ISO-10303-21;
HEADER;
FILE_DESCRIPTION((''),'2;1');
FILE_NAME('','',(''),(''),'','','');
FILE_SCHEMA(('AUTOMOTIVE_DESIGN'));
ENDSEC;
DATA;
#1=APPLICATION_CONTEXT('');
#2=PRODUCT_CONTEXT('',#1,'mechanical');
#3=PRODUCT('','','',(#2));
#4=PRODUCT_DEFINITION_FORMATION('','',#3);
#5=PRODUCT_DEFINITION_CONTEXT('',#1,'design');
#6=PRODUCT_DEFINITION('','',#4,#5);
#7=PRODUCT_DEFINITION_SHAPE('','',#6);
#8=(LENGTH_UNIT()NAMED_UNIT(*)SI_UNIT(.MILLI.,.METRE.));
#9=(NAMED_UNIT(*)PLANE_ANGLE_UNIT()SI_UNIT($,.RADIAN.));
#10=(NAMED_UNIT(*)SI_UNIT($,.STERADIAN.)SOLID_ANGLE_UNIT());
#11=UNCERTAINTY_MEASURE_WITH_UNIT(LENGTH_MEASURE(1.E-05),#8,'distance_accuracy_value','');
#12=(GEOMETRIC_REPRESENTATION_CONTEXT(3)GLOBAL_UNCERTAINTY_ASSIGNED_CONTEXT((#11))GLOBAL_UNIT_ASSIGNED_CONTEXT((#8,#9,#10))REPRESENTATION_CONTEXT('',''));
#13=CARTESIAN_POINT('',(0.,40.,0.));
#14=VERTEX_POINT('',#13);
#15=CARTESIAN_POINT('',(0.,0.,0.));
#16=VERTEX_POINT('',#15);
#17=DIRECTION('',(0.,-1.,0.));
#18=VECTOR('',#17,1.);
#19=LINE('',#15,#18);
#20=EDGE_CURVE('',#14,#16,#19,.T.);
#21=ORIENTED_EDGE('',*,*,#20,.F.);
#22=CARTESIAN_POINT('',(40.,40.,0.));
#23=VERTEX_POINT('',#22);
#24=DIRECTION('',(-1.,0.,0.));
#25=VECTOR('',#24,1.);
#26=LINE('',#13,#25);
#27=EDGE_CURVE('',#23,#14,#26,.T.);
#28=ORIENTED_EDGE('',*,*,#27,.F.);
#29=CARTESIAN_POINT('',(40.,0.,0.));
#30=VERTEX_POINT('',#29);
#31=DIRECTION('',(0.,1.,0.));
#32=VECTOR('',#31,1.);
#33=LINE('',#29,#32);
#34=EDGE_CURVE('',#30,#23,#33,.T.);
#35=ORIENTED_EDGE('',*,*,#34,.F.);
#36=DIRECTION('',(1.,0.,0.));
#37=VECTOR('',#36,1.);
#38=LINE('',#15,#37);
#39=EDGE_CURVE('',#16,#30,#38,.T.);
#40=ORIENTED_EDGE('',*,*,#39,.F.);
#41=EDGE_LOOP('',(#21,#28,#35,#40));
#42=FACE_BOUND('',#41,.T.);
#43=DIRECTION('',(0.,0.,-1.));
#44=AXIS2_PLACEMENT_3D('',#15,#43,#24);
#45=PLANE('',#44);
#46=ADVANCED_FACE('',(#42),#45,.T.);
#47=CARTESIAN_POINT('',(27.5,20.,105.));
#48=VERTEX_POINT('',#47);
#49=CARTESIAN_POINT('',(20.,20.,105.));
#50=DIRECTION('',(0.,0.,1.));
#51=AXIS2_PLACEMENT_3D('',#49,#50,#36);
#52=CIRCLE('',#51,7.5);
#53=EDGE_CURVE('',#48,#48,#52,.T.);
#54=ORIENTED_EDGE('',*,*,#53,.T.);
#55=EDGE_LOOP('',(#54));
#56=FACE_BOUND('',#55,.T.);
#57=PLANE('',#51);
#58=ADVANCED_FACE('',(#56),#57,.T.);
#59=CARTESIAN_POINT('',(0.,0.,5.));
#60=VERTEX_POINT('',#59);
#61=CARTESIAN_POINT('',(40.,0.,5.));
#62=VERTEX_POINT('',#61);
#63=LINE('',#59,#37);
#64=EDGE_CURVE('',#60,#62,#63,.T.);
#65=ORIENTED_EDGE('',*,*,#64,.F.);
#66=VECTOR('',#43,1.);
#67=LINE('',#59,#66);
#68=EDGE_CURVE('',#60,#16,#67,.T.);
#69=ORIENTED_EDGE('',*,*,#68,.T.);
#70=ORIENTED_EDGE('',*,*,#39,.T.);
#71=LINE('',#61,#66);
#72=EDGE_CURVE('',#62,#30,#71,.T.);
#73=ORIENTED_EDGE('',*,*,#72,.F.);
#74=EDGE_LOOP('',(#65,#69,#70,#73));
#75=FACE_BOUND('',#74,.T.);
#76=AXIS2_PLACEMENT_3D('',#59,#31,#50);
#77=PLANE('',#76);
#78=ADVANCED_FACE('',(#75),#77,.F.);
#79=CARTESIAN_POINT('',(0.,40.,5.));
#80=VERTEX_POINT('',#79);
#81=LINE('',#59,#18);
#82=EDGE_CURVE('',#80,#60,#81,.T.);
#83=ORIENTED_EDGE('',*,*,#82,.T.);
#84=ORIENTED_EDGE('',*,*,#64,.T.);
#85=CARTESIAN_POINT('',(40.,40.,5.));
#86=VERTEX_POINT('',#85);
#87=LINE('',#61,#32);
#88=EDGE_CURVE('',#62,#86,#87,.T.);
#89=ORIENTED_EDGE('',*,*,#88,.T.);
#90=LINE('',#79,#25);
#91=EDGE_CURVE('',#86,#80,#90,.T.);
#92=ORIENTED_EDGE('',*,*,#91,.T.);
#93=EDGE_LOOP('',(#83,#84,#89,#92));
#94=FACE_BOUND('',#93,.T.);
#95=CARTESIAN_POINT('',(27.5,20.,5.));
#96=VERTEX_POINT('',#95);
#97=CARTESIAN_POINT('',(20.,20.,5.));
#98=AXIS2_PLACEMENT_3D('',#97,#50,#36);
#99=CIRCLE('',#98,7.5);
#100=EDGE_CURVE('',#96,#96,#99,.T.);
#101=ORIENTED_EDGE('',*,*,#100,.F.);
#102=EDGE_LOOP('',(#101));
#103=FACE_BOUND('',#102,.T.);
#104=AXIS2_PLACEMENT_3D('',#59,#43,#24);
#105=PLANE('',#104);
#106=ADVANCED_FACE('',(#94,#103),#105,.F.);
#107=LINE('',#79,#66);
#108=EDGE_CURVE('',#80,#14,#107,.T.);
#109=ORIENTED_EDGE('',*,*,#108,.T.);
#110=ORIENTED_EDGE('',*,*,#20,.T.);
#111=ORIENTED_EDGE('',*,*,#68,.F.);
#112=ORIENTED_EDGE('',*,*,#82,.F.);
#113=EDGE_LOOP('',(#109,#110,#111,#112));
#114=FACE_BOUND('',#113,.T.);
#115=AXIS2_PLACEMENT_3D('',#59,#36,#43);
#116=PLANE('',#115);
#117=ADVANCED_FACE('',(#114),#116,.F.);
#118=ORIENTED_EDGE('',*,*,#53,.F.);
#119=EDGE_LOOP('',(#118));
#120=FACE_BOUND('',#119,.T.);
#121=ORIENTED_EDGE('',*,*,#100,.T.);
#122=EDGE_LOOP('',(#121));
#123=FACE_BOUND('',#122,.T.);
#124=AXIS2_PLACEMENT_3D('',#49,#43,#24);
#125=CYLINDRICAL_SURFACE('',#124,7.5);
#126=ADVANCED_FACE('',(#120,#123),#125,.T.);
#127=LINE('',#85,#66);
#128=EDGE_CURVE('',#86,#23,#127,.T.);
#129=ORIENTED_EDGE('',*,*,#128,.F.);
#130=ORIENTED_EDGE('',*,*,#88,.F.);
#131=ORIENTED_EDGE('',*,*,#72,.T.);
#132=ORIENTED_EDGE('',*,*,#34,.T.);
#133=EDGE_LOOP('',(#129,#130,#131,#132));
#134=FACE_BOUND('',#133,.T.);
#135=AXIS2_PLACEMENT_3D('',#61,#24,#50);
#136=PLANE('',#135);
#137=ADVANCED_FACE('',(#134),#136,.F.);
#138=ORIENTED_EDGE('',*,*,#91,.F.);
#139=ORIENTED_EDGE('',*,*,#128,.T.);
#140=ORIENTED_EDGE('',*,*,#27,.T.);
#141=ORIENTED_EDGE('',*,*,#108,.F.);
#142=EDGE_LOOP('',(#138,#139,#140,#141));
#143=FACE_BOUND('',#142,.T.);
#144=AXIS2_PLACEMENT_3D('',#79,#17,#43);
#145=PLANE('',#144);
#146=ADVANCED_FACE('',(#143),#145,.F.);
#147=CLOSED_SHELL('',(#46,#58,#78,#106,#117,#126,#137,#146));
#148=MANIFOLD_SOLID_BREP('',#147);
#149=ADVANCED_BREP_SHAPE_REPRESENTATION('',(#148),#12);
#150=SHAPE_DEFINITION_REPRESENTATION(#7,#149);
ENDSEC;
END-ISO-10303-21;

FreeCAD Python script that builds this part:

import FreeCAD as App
import Part
import Sketcher
from FreeCAD import Vector


def add_polygon(sketch, points):
    """Adds a closed chain of lines whose ends are joined by coincident constraints."""
    first, n = sketch.GeometryCount, len(points)
    for a, b in zip(points, points[1:] + points[:1]):
        sketch.addGeometry(Part.LineSegment(App.Vector(*a, 0), App.Vector(*b, 0)), False)
    for i in range(n):
        sketch.addConstraint(Sketcher.Constraint("Coincident", first + i, 2, first + (i + 1) % n, 1))

doc = App.newDocument("Part")
body = doc.addObject("PartDesign::Body", "Body")

sketch1 = body.newObject("Sketcher::SketchObject", "Sketch")
sketch1.AttachmentSupport = (doc.getObject("XY_Plane"), [""])
sketch1.MapMode = "FlatFace"
add_polygon(sketch1, [(0, 40), (0, 0), (40, 0), (40, 40)])
sketch1.addConstraint(Sketcher.Constraint("Vertical", 0))
sketch1.addConstraint(Sketcher.Constraint("Horizontal", 1))
sketch1.addConstraint(Sketcher.Constraint("Vertical", 2))
sketch1.addConstraint(Sketcher.Constraint("Horizontal", 3))
sketch1.addConstraint(Sketcher.Constraint("Coincident", 0, 2, -1, 1))
sketch1.addConstraint(Sketcher.Constraint("Equal", 3, 0))
sketch1.addConstraint(Sketcher.Constraint("DistanceX", 1, 1, 1, 2, 40.0))
pad1 = body.newObject("PartDesign::Pad", "Pad")
pad1.Profile = sketch1
pad1.Length = 5

sketch2 = body.newObject("Sketcher::SketchObject", "Sketch001")
sketch2.AttachmentSupport = (doc.getObject("XY_Plane"), [""])
sketch2.MapMode = "FlatFace"
sketch2.AttachmentOffset = App.Placement(Vector(0, 0, 5), App.Rotation())
sketch2.addGeometry(Part.Circle(Vector(20, 20, 0), Vector(0, 0, 1), 8), False)
sketch2.addConstraint(Sketcher.Constraint("Diameter", 0, 15.0))
sketch2.addConstraint(Sketcher.Constraint("DistanceX", -1, 1, 0, 3, 20.0))
sketch2.addConstraint(Sketcher.Constraint("DistanceY", -1, 1, 0, 3, 20.0))
pad2 = body.newObject("PartDesign::Pad", "Pad001")
pad2.Profile = sketch2
pad2.Length = 100

doc.recompute()
